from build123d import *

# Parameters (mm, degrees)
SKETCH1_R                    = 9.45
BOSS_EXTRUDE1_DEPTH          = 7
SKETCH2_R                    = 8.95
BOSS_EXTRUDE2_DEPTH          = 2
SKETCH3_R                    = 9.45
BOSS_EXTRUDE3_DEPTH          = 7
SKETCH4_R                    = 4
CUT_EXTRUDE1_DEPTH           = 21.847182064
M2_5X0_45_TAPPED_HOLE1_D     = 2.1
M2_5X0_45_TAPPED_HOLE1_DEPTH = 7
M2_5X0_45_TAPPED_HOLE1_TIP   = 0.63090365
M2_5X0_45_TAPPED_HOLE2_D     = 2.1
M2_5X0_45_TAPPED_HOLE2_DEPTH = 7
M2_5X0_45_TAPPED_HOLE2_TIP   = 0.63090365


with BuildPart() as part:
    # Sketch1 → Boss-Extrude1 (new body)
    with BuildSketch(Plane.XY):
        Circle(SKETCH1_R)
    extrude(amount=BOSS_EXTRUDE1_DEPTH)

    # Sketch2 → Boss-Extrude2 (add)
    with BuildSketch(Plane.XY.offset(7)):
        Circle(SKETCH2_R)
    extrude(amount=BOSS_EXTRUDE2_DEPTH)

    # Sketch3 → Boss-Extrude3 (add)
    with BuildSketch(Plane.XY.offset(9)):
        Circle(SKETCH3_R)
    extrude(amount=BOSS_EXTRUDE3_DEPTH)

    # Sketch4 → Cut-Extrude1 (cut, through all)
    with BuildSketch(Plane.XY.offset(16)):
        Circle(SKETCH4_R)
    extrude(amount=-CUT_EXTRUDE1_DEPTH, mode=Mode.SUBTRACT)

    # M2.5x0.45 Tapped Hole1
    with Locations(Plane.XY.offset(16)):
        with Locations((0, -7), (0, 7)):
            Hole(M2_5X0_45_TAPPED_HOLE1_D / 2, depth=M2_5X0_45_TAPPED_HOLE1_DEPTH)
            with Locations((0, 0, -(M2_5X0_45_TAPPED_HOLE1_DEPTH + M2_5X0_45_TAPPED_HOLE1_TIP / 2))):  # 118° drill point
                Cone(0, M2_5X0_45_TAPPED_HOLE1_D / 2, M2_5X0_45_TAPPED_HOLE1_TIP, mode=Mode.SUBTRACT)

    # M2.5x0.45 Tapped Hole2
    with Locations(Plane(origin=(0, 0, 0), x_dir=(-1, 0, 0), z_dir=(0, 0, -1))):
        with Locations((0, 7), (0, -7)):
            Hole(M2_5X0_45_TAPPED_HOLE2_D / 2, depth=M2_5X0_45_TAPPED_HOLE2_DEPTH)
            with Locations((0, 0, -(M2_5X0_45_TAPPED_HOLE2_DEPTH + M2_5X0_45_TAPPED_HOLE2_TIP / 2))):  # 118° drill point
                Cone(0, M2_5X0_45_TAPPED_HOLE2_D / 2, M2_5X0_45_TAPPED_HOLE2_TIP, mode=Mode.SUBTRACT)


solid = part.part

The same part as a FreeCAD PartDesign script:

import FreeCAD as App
import Part
import Sketcher
Q = App.Units.Quantity

doc = App.newDocument("Part")
params = doc.addObject("Spreadsheet::Sheet", "Params")
for row, (alias, value) in enumerate([
    ("sketch1_diameter", "18.9 mm"),
    ("pad1_length", "7 mm"),
    ("sketch2_diameter", "17.9 mm"),
    ("pad2_length", "2 mm"),
    ("sketch3_diameter", "18.9 mm"),
    ("pad3_length", "7 mm"),
    ("sketch4_diameter", "8 mm"),
    ("sketch5_diameter", "2.1 mm"),
    ("hole_diameter", "2.1 mm"),
    ("hole_depth", "7 mm"),
    ("sketch6_diameter", "2.1 mm"),
    ("hole2_diameter", "2.1 mm"),
    ("hole2_depth", "7 mm"),
], start=1):
    params.set(f"A{row}", alias)
    params.set(f"B{row}", "=" + value)
    params.setAlias(f"B{row}", alias)

body = doc.addObject("PartDesign::Body", "Body")

# Sketch on XY plane
sketch1 = doc.addObject("Sketcher::SketchObject", "Sketch")
body.addObject(sketch1)
sketch1.AttachmentSupport = (doc.XY_Plane, [""])
sketch1.MapMode = "FlatFace"
sketch1.addGeometry(Part.Circle(App.Vector(0, 0, 0), App.Vector(0, 0, 1), 9), False)
sketch1.addConstraint([
    Sketcher.Constraint("Coincident", 0, 3, -1, 1),
    Sketcher.Constraint("Diameter", 0, Q("18.9 mm")),
])
sketch1.setExpression("Constraints[1]", "Params.sketch1_diameter")
pad1 = doc.addObject("PartDesign::Pad", "Pad")
body.addObject(pad1)
pad1.Profile = sketch1
pad1.setExpression("Length", "Params.pad1_length")

# Sketch on XY plane
sketch2 = doc.addObject("Sketcher::SketchObject", "Sketch001")
body.addObject(sketch2)
sketch2.AttachmentSupport = (doc.XY_Plane, [""])
sketch2.MapMode = "FlatFace"
sketch2.AttachmentOffset = App.Placement(App.Vector(0, 0, 7), App.Rotation())
sketch2.addGeometry(Part.Circle(App.Vector(0, 0, 0), App.Vector(0, 0, 1), 9), False)
sketch2.addConstraint([
    Sketcher.Constraint("Coincident", 0, 3, -1, 1),
    Sketcher.Constraint("Diameter", 0, Q("17.9 mm")),
])
sketch2.setExpression("Constraints[1]", "Params.sketch2_diameter")
pad2 = doc.addObject("PartDesign::Pad", "Pad001")
body.addObject(pad2)
pad2.Profile = sketch2
pad2.setExpression("Length", "Params.pad2_length")

# Sketch on XY plane
sketch3 = doc.addObject("Sketcher::SketchObject", "Sketch002")
body.addObject(sketch3)
sketch3.AttachmentSupport = (doc.XY_Plane, [""])
sketch3.MapMode = "FlatFace"
sketch3.AttachmentOffset = App.Placement(App.Vector(0, 0, 9), App.Rotation())
sketch3.addGeometry(Part.Circle(App.Vector(0, 0, 0), App.Vector(0, 0, 1), 9), False)
sketch3.addConstraint([
    Sketcher.Constraint("Coincident", 0, 3, -1, 1),
    Sketcher.Constraint("Diameter", 0, Q("18.9 mm")),
])
sketch3.setExpression("Constraints[1]", "Params.sketch3_diameter")
pad3 = doc.addObject("PartDesign::Pad", "Pad002")
body.addObject(pad3)
pad3.Profile = sketch3
pad3.setExpression("Length", "Params.pad3_length")

# Sketch on XY plane
sketch4 = doc.addObject("Sketcher::SketchObject", "Sketch003")
body.addObject(sketch4)
sketch4.AttachmentSupport = (doc.XY_Plane, [""])
sketch4.MapMode = "FlatFace"
sketch4.AttachmentOffset = App.Placement(App.Vector(0, 0, 16), App.Rotation())
sketch4.addGeometry(Part.Circle(App.Vector(0, 0, 0), App.Vector(0, 0, 1), 4), False)
sketch4.addConstraint([
    Sketcher.Constraint("Coincident", 0, 3, -1, 1),
    Sketcher.Constraint("Diameter", 0, Q("8 mm")),
])
sketch4.setExpression("Constraints[1]", "Params.sketch4_diameter")
pocket1 = doc.addObject("PartDesign::Pocket", "Pocket")
body.addObject(pocket1)
pocket1.Profile = sketch4
pocket1.Type = "ThroughAll"

# Sketch on XY plane
sketch5 = doc.addObject("Sketcher::SketchObject", "Sketch004")
body.addObject(sketch5)
sketch5.AttachmentSupport = (doc.XY_Plane, [""])
sketch5.MapMode = "FlatFace"
sketch5.AttachmentOffset = App.Placement(App.Vector(0, 0, 16), App.Rotation())
sketch5.addGeometry([
    Part.Circle(App.Vector(0, -7, 0), App.Vector(0, 0, 1), 1.1),
    Part.Circle(App.Vector(0, 7, 0), App.Vector(0, 0, 1), 1.1),
], False)
sketch5.addConstraint([
    Sketcher.Constraint("Equal", 0, 1),
    Sketcher.Constraint("Symmetric", 0, 3, 1, 3, -1, 1),
    Sketcher.Constraint("PointOnObject", 0, 3, -2),
    Sketcher.Constraint("Diameter", 0, Q("2.1 mm")),
    Sketcher.Constraint("DistanceY", 0, 3, -1, 1, Q("7 mm")),
])
sketch5.setExpression("Constraints[3]", "Params.sketch5_diameter")
doc.recompute()
hole = doc.addObject("PartDesign::Hole", "Hole")
body.addObject(hole)
hole.Profile = sketch5
hole.ThreadType = "None"
hole.setExpression("Diameter", "Params.hole_diameter")
hole.DepthType = "Dimension"
hole.setExpression("Depth", "Params.hole_depth")
hole.DrillPoint = "Angled"
hole.DrillPointAngle = 118

# Sketch on XY plane
sketch6 = doc.addObject("Sketcher::SketchObject", "Sketch005")
body.addObject(sketch6)
sketch6.AttachmentSupport = (doc.XY_Plane, [""])
sketch6.MapMode = "FlatFace"
sketch6.addGeometry([
    Part.Circle(App.Vector(0, 7, 0), App.Vector(0, 0, 1), 1.1),
    Part.Circle(App.Vector(0, -7, 0), App.Vector(0, 0, 1), 1.1),
], False)
sketch6.addConstraint([
    Sketcher.Constraint("Equal", 0, 1),
    Sketcher.Constraint("Symmetric", 0, 3, 1, 3, -1, 1),
    Sketcher.Constraint("PointOnObject", 0, 3, -2),
    Sketcher.Constraint("Diameter", 0, Q("2.1 mm")),
    Sketcher.Constraint("DistanceY", -1, 1, 0, 3, Q("7 mm")),
])
sketch6.setExpression("Constraints[3]", "Params.sketch6_diameter")
doc.recompute()
hole2 = doc.addObject("PartDesign::Hole", "Hole001")
body.addObject(hole2)
hole2.Profile = sketch6
hole2.ThreadType = "None"
hole2.setExpression("Diameter", "Params.hole2_diameter")
hole2.DepthType = "Dimension"
hole2.setExpression("Depth", "Params.hole2_depth")
hole2.DrillPoint = "Angled"
hole2.DrillPointAngle = 118
hole2.Reversed = True

doc.recompute()
